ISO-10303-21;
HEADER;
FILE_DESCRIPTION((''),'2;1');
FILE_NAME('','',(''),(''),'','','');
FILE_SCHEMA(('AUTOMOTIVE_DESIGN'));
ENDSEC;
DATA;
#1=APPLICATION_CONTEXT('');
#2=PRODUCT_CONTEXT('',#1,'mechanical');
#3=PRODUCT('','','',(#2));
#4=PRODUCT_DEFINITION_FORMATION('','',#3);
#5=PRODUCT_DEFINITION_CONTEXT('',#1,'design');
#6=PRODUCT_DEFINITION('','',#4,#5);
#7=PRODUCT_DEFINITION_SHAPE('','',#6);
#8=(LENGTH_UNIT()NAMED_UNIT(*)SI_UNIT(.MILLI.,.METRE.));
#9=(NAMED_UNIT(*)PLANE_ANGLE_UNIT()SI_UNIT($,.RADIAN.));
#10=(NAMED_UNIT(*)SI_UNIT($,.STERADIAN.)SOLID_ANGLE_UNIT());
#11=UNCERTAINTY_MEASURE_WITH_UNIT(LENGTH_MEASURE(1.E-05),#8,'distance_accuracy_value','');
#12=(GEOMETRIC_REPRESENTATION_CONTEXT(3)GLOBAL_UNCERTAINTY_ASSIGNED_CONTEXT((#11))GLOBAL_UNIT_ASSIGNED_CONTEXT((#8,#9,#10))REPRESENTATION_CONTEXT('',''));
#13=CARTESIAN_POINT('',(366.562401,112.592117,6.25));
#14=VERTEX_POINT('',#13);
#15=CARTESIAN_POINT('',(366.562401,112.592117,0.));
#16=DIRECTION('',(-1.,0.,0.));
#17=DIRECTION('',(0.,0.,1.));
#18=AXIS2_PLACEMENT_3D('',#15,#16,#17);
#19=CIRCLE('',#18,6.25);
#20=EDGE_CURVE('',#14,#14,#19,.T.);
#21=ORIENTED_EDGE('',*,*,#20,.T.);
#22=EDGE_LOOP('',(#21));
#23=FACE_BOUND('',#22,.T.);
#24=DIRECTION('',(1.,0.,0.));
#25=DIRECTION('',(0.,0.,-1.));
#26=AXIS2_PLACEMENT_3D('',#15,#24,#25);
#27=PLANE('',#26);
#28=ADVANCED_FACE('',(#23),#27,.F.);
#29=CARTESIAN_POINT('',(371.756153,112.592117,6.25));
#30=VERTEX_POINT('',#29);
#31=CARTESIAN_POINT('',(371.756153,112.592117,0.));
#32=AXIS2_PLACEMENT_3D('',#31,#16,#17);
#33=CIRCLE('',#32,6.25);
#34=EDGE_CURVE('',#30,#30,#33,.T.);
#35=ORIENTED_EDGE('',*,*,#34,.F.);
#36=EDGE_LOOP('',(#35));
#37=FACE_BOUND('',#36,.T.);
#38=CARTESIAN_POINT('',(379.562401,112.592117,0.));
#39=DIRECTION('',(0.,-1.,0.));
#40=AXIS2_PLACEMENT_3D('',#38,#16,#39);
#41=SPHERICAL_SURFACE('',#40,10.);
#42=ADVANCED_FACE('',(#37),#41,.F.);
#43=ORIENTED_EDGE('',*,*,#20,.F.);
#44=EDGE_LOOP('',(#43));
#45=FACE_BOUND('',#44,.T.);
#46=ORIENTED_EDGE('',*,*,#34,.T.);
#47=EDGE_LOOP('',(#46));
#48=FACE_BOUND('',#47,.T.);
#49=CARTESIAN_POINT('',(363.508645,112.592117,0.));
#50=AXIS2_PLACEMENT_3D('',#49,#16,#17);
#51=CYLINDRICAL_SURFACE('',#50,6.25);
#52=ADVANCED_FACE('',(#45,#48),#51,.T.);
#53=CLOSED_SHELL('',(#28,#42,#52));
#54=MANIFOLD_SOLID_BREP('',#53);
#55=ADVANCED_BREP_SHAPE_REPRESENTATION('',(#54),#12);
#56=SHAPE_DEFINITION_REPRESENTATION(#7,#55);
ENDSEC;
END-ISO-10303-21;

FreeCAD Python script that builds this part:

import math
import FreeCAD as App
import Part
import Sketcher
from FreeCAD import Vector
Q = App.Units.Quantity

doc = App.newDocument("Part")
body = doc.addObject("PartDesign::Body", "Body")

# Sketch on XY plane
sketch1 = body.newObject("Sketcher::SketchObject", "Sketch")
sketch1.AttachmentSupport = (doc.getObject("XY_Plane"), [""])
sketch1.MapMode = "FlatFace"
sketch1.addGeometry(Part.LineSegment(Vector(366.6, 118.8, 0), Vector(366.6, 112.6, 0)), False)
sketch1.addGeometry(Part.LineSegment(Vector(366.6, 112.6, 0), Vector(369.6, 112.6, 0)), False)
sketch1.addGeometry(Part.ArcOfCircle(Part.Circle(Vector(379.6, 112.6, 0), Vector(0, 0, 1), 10), math.radians(141), math.radians(180)), False)
sketch1.addGeometry(Part.LineSegment(Vector(371.8, 118.8, 0), Vector(366.6, 118.8, 0)), False)
sketch1.addGeometry(Part.LineSegment(Vector(366.6, 112.6, 0), Vector(379.6, 112.6, 0)), True)  # axis
sketch1.addConstraint(Sketcher.Constraint("Coincident", 0, 2, 1, 1))
sketch1.addConstraint(Sketcher.Constraint("Coincident", 1, 2, 2, 2))
sketch1.addConstraint(Sketcher.Constraint("Coincident", 2, 1, 3, 1))
sketch1.addConstraint(Sketcher.Constraint("Coincident", 3, 2, 0, 1))
sketch1.addConstraint(Sketcher.Constraint("Vertical", 0))
sketch1.addConstraint(Sketcher.Constraint("Horizontal", 1))
sketch1.addConstraint(Sketcher.Constraint("Horizontal", 3))
sketch1.addConstraint(Sketcher.Constraint("Horizontal", 4))
sketch1.addConstraint(Sketcher.Constraint("Coincident", 4, 1, 0, 2))
sketch1.addConstraint(Sketcher.Constraint("Coincident", 4, 2, 2, 3))
sketch1.addConstraint(Sketcher.Constraint("Radius", 2, Q("10 mm")))
sketch1.addConstraint(Sketcher.Constraint("DistanceX", 1, 1, 1, 2, Q("3 mm")))
sketch1.addConstraint(Sketcher.Constraint("DistanceY", 0, 2, 0, 1, Q("6.25 mm")))
sketch1.addConstraint(Sketcher.Constraint("DistanceX", -1, 1, 2, 3, Q("379.562401 mm")))
sketch1.addConstraint(Sketcher.Constraint("DistanceY", -1, 1, 2, 3, Q("112.592117 mm")))
revolution = body.newObject("PartDesign::Revolution", "Revolution")
revolution.Profile = sketch1
revolution.ReferenceAxis = (sketch1, ["Axis0"])
revolution.Angle = 360

doc.recompute()
